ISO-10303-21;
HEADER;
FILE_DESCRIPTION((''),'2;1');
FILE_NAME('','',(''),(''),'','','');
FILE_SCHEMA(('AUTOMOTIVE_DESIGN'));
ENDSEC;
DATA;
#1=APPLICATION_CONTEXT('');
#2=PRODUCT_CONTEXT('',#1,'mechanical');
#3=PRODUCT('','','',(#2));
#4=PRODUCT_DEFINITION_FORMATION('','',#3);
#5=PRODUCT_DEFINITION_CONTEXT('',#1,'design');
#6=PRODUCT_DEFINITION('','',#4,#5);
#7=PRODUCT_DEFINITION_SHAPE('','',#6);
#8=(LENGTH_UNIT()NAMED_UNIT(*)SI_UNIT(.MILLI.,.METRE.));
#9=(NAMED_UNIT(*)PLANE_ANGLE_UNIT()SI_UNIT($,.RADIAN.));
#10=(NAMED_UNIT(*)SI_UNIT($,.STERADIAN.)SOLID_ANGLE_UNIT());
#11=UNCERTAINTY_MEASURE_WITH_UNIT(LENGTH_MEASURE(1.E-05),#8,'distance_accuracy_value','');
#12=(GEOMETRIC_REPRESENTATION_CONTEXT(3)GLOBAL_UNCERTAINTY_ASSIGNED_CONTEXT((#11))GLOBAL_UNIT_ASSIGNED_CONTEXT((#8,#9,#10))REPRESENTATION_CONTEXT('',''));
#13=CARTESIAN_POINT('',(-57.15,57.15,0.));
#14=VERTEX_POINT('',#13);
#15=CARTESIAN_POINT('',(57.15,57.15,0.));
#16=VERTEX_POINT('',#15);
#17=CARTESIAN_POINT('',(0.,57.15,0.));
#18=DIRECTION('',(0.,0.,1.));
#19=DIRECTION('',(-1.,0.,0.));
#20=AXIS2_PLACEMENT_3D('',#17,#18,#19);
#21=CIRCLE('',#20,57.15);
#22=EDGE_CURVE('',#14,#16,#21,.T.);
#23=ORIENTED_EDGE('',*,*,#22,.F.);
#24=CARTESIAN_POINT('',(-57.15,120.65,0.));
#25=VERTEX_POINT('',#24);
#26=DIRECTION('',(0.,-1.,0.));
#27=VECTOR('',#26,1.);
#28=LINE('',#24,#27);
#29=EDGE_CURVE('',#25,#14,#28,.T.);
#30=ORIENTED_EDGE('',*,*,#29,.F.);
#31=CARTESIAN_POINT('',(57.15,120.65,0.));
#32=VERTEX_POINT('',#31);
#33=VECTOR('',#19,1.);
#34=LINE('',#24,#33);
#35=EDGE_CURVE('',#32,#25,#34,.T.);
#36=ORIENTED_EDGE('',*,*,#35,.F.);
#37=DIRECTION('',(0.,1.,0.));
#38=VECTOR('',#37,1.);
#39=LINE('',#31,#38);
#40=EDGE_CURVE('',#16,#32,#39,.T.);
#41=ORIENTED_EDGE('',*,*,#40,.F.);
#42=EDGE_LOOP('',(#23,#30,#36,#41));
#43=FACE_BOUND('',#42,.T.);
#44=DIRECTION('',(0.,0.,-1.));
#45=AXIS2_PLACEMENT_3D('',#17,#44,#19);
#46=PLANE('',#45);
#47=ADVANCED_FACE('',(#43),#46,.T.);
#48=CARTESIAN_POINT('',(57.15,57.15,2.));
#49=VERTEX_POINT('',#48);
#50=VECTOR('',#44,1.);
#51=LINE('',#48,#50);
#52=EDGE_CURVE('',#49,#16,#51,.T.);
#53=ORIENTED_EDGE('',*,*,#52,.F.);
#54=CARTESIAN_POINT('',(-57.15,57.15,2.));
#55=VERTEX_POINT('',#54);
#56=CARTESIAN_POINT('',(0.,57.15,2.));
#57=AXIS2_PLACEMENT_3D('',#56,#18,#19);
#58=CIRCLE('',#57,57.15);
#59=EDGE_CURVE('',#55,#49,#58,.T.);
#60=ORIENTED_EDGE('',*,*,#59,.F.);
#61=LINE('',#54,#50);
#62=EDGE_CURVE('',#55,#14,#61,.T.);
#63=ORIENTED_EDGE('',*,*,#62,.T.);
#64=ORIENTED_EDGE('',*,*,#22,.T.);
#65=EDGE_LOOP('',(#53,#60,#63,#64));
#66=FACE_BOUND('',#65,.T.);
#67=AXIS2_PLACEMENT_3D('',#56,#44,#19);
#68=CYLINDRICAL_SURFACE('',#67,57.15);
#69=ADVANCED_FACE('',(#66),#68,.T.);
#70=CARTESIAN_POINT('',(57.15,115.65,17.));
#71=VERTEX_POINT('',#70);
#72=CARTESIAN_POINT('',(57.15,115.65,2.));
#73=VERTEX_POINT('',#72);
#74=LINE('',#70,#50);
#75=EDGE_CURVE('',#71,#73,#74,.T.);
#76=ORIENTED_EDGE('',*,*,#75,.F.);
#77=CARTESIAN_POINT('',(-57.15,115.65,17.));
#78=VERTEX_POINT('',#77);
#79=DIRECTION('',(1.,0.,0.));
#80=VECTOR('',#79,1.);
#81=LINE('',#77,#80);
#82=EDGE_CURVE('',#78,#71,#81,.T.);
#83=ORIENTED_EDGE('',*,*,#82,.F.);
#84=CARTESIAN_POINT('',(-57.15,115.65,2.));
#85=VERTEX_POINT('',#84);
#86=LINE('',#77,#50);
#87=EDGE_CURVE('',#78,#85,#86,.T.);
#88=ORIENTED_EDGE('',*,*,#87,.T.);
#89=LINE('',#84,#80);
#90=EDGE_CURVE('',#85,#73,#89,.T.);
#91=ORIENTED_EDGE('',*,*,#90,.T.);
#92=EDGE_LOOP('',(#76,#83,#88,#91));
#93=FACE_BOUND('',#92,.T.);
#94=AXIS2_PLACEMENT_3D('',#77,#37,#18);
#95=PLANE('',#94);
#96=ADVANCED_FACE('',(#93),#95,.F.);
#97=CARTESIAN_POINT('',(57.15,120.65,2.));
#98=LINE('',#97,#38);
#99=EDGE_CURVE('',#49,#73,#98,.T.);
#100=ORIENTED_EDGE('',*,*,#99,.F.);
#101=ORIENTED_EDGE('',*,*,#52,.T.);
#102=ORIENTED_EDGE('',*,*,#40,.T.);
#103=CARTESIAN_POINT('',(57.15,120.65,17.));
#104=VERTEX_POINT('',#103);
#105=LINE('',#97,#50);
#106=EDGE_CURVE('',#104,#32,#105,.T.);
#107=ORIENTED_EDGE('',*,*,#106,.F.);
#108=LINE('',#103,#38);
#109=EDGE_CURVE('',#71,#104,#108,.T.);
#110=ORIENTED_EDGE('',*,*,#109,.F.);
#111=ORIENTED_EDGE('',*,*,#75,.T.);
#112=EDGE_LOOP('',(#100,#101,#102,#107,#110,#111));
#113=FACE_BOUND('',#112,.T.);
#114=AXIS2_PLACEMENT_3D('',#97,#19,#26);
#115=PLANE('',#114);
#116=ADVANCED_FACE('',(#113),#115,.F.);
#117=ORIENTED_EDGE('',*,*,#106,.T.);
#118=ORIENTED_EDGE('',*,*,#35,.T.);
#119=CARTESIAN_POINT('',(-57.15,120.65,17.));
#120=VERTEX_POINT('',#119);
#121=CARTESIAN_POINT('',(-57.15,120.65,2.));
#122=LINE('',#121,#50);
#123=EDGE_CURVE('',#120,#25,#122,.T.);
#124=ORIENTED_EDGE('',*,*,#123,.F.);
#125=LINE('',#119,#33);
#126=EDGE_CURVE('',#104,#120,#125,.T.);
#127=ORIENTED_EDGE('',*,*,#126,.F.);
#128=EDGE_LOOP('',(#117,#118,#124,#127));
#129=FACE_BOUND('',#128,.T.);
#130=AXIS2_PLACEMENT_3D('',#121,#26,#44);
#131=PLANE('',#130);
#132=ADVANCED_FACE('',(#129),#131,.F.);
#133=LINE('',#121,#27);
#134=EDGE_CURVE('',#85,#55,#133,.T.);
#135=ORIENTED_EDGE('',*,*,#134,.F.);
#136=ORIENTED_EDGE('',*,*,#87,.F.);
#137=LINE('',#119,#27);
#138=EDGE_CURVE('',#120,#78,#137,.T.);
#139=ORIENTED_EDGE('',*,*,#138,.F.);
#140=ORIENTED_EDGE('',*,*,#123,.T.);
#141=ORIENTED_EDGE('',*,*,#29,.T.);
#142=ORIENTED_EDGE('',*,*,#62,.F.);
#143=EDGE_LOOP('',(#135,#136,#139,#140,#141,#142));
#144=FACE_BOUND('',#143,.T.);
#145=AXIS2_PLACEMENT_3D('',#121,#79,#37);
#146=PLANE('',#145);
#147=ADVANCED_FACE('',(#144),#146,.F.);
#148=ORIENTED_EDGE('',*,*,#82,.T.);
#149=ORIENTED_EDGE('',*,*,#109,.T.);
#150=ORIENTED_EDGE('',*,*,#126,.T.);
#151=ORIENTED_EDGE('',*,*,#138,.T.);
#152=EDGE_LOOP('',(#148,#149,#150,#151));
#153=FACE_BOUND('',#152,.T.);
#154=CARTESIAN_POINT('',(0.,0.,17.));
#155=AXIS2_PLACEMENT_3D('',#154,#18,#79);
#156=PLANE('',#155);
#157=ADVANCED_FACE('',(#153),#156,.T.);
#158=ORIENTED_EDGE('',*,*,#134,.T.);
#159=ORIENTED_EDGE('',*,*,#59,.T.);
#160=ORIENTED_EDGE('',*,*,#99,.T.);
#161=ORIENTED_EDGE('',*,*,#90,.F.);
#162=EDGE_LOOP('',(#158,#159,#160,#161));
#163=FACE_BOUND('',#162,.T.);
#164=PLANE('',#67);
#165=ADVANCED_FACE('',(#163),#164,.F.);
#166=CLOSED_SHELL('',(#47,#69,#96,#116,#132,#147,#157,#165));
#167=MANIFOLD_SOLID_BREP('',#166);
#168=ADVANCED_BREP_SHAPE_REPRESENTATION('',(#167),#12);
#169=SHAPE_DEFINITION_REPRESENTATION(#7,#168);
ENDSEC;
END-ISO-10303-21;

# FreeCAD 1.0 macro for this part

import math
import FreeCAD as App
import Part
import Sketcher
from FreeCAD import Vector
Q = App.Units.Quantity

doc = App.newDocument("Part")
body = doc.addObject("PartDesign::Body", "Body")

sketch1 = body.newObject("Sketcher::SketchObject", "Sketch")
sketch1.AttachmentSupport = (doc.getObject("XY_Plane"), [""])
sketch1.MapMode = "FlatFace"
sketch1.addGeometry(Part.LineSegment(Vector(57, 121, 0), Vector(-57, 121, 0)), False)
sketch1.addGeometry(Part.LineSegment(Vector(-57, 121, 0), Vector(-57, 57, 0)), False)
sketch1.addGeometry(Part.ArcOfCircle(Part.Circle(Vector(0, 57, 0), Vector(0, 0, 1), 57), math.radians(180), math.radians(360)), False)
sketch1.addGeometry(Part.LineSegment(Vector(57, 57, 0), Vector(57, 121, 0)), False)
sketch1.addConstraint(Sketcher.Constraint("Coincident", 0, 2, 1, 1))
sketch1.addConstraint(Sketcher.Constraint("Tangent", 1, 2, 2, 1))
sketch1.addConstraint(Sketcher.Constraint("Tangent", 2, 2, 3, 1))
sketch1.addConstraint(Sketcher.Constraint("Coincident", 3, 2, 0, 1))
sketch1.addConstraint(Sketcher.Constraint("Horizontal", 0))
sketch1.addConstraint(Sketcher.Constraint("Vertical", 1))
sketch1.addConstraint(Sketcher.Constraint("Vertical", 3))
sketch1.addConstraint(Sketcher.Constraint("PointOnObject", 2, 3, -2))
sketch1.addConstraint(Sketcher.Constraint("Radius", 2, Q("57.15 mm")))
sketch1.addConstraint(Sketcher.Constraint("DistanceY", 1, 2, 1, 1, Q("63.5 mm")))
sketch1.addConstraint(Sketcher.Constraint("DistanceY", -1, 1, 2, 3, Q("57.15 mm")))
pad1 = body.newObject("PartDesign::Pad", "Pad")
pad1.Profile = sketch1
pad1.Length = 2

sketch2 = body.newObject("Sketcher::SketchObject", "Sketch001")
sketch2.AttachmentSupport = (doc.getObject("XY_Plane"), [""])
sketch2.MapMode = "FlatFace"
sketch2.AttachmentOffset = App.Placement(Vector(0, 0, 2), App.Rotation())
sketch2.addGeometry(Part.LineSegment(Vector(-57, 121, 0), Vector(-57, 116, 0)), False)
sketch2.addGeometry(Part.LineSegment(Vector(-57, 116, 0), Vector(57, 116, 0)), False)
sketch2.addGeometry(Part.LineSegment(Vector(57, 116, 0), Vector(57, 121, 0)), False)
sketch2.addGeometry(Part.LineSegment(Vector(57, 121, 0), Vector(-57, 121, 0)), False)
sketch2.addConstraint(Sketcher.Constraint("Coincident", 0, 2, 1, 1))
sketch2.addConstraint(Sketcher.Constraint("Coincident", 1, 2, 2, 1))
sketch2.addConstraint(Sketcher.Constraint("Coincident", 2, 2, 3, 1))
sketch2.addConstraint(Sketcher.Constraint("Coincident", 3, 2, 0, 1))
sketch2.addConstraint(Sketcher.Constraint("Vertical", 0))
sketch2.addConstraint(Sketcher.Constraint("Horizontal", 1))
sketch2.addConstraint(Sketcher.Constraint("Vertical", 2))
sketch2.addConstraint(Sketcher.Constraint("Horizontal", 3))
sketch2.addConstraint(Sketcher.Constraint("DistanceY", 0, 2, 0, 1, Q("5 mm")))
sketch2.addConstraint(Sketcher.Constraint("DistanceX", 1, 1, 1, 2, Q("114.3 mm")))
sketch2.addConstraint(Sketcher.Constraint("DistanceX", 0, 2, -1, 1, Q("57.15 mm")))
sketch2.addConstraint(Sketcher.Constraint("DistanceY", -1, 1, 0, 2, Q("115.65 mm")))
pad2 = body.newObject("PartDesign::Pad", "Pad001")
pad2.Profile = sketch2
pad2.Length = 15

doc.recompute()
